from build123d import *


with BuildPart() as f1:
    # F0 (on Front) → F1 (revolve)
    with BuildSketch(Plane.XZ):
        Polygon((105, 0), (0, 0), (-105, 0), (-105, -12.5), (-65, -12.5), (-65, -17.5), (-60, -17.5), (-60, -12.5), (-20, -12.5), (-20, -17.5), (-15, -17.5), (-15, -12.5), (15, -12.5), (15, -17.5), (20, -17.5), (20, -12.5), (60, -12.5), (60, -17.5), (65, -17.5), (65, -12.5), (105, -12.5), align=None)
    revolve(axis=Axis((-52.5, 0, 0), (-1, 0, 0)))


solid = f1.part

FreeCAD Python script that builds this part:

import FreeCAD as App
import Part
import Sketcher

V = App.Vector
Q = App.Units.Quantity

doc = App.newDocument("Part")
body = doc.addObject("PartDesign::Body", "Body")

# Sketch on XZ plane
sketch1 = body.newObject("Sketcher::SketchObject", "Sketch")
sketch1.AttachmentSupport = (doc.getObject("XZ_Plane"), [""])
sketch1.MapMode = "FlatFace"
sketch1.addGeometry([
    Part.LineSegment(V(105, 0, 0), V(-105, 0, 0)),  # 0
    Part.LineSegment(V(-105, 0, 0), V(-105, -12.5, 0)),  # 1
    Part.LineSegment(V(-105, -12.5, 0), V(-65, -12.5, 0)),  # 2
    Part.LineSegment(V(-65, -12.5, 0), V(-65, -17.5, 0)),  # 3
    Part.LineSegment(V(-65, -17.5, 0), V(-60, -17.5, 0)),  # 4
    Part.LineSegment(V(-60, -17.5, 0), V(-60, -12.5, 0)),  # 5
    Part.LineSegment(V(-60, -12.5, 0), V(-20, -12.5, 0)),  # 6
    Part.LineSegment(V(-20, -12.5, 0), V(-20, -17.5, 0)),  # 7
    Part.LineSegment(V(-20, -17.5, 0), V(-15, -17.5, 0)),  # 8
    Part.LineSegment(V(-15, -17.5, 0), V(-15, -12.5, 0)),  # 9
    Part.LineSegment(V(-15, -12.5, 0), V(15, -12.5, 0)),  # 10
    Part.LineSegment(V(15, -12.5, 0), V(15, -17.5, 0)),  # 11
    Part.LineSegment(V(15, -17.5, 0), V(20, -17.5, 0)),  # 12
    Part.LineSegment(V(20, -17.5, 0), V(20, -12.5, 0)),  # 13
    Part.LineSegment(V(20, -12.5, 0), V(60, -12.5, 0)),  # 14
    Part.LineSegment(V(60, -12.5, 0), V(60, -17.5, 0)),  # 15
    Part.LineSegment(V(60, -17.5, 0), V(65, -17.5, 0)),  # 16
    Part.LineSegment(V(65, -17.5, 0), V(65, -12.5, 0)),  # 17
    Part.LineSegment(V(65, -12.5, 0), V(105, -12.5, 0)),  # 18
    Part.LineSegment(V(105, -12.5, 0), V(105, 0, 0)),  # 19
], False)
sketch1.addConstraint([
    Sketcher.Constraint("Coincident", 0, 2, 1, 1),
    Sketcher.Constraint("Coincident", 1, 2, 2, 1),
    Sketcher.Constraint("Coincident", 2, 2, 3, 1),
    Sketcher.Constraint("Coincident", 3, 2, 4, 1),
    Sketcher.Constraint("Coincident", 4, 2, 5, 1),
    Sketcher.Constraint("Coincident", 5, 2, 6, 1),
    Sketcher.Constraint("Coincident", 6, 2, 7, 1),
    Sketcher.Constraint("Coincident", 7, 2, 8, 1),
    Sketcher.Constraint("Coincident", 8, 2, 9, 1),
    Sketcher.Constraint("Coincident", 9, 2, 10, 1),
    Sketcher.Constraint("Coincident", 10, 2, 11, 1),
    Sketcher.Constraint("Coincident", 11, 2, 12, 1),
    Sketcher.Constraint("Coincident", 12, 2, 13, 1),
    Sketcher.Constraint("Coincident", 13, 2, 14, 1),
    Sketcher.Constraint("Coincident", 14, 2, 15, 1),
    Sketcher.Constraint("Coincident", 15, 2, 16, 1),
    Sketcher.Constraint("Coincident", 16, 2, 17, 1),
    Sketcher.Constraint("Coincident", 17, 2, 18, 1),
    Sketcher.Constraint("Coincident", 18, 2, 19, 1),
    Sketcher.Constraint("Coincident", 19, 2, 0, 1),
    Sketcher.Constraint("Horizontal", 0),
    Sketcher.Constraint("Vertical", 1),
    Sketcher.Constraint("Horizontal", 2),
    Sketcher.Constraint("Vertical", 3),
    Sketcher.Constraint("Horizontal", 4),
    Sketcher.Constraint("Vertical", 5),
    Sketcher.Constraint("Horizontal", 6),
    Sketcher.Constraint("Vertical", 7),
    Sketcher.Constraint("Horizontal", 8),
    Sketcher.Constraint("Vertical", 9),
    Sketcher.Constraint("Horizontal", 10),
    Sketcher.Constraint("Vertical", 11),
    Sketcher.Constraint("Horizontal", 12),
    Sketcher.Constraint("Vertical", 13),
    Sketcher.Constraint("Horizontal", 14),
    Sketcher.Constraint("Vertical", 15),
    Sketcher.Constraint("Horizontal", 16),
    Sketcher.Constraint("Vertical", 17),
    Sketcher.Constraint("Horizontal", 18),
    Sketcher.Constraint("Vertical", 19),
    Sketcher.Constraint("Symmetric", 0, 2, 19, 2, -1, 1),
    Sketcher.Constraint("Symmetric", 8, 2, 11, 2, -2),
    Sketcher.Constraint("Symmetric", 6, 2, 13, 2, -2),
    Sketcher.Constraint("Symmetric", 4, 2, 15, 2, -2),
    Sketcher.Constraint("Symmetric", 2, 2, 17, 2, -2),
    Sketcher.Constraint("Horizontal", 2, 2, 5, 2),
    Sketcher.Constraint("Horizontal", 4, 2, 7, 2),
    Sketcher.Constraint("Horizontal", 6, 2, 9, 2),
    Sketcher.Constraint("Equal", 2, 6),
    Sketcher.Constraint("Equal", 4, 8),
    Sketcher.Constraint("Equal", 16, 3),
    Sketcher.Constraint("DistanceX", 0, 2, 0, 1, Q("210 mm")),
    Sketcher.Constraint("DistanceX", 2, 1, 2, 2, Q("40 mm")),
    Sketcher.Constraint("DistanceX", 4, 1, 4, 2, Q("5 mm")),
    Sketcher.Constraint("DistanceY", 1, 2, 1, 1, Q("12.5 mm")),
])
revolution = body.newObject("PartDesign::Revolution", "Revolution")
revolution.Profile = sketch1
revolution.ReferenceAxis = (sketch1, ["H_Axis"])
revolution.Angle = 360

doc.recompute()
